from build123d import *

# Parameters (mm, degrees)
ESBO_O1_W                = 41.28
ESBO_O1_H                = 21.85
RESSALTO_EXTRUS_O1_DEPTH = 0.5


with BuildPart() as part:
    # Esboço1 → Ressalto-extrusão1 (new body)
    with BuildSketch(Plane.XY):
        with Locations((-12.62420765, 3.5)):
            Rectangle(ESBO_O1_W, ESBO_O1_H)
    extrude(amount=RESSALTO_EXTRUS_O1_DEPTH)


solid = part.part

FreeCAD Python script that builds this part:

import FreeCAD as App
import Part
import Sketcher
Q = App.Units.Quantity

doc = App.newDocument("Part")
body = doc.addObject("PartDesign::Body", "Body")

# Sketch on XY plane
sketch1 = doc.addObject("Sketcher::SketchObject", "Sketch")
body.addObject(sketch1)
sketch1.AttachmentSupport = (doc.XY_Plane, [""])
sketch1.MapMode = "FlatFace"
sketch1.addGeometry([
    Part.LineSegment(App.Vector(-33, 14, 0), App.Vector(-33, -7, 0)),
    Part.LineSegment(App.Vector(-33, -7, 0), App.Vector(8, -7, 0)),
    Part.LineSegment(App.Vector(8, -7, 0), App.Vector(8, 14, 0)),
    Part.LineSegment(App.Vector(8, 14, 0), App.Vector(-33, 14, 0)),
], False)
sketch1.addConstraint([
    Sketcher.Constraint("Coincident", 0, 2, 1, 1),
    Sketcher.Constraint("Coincident", 1, 2, 2, 1),
    Sketcher.Constraint("Coincident", 2, 2, 3, 1),
    Sketcher.Constraint("Coincident", 3, 2, 0, 1),
    Sketcher.Constraint("Vertical", 0),
    Sketcher.Constraint("Horizontal", 1),
    Sketcher.Constraint("Vertical", 2),
    Sketcher.Constraint("Horizontal", 3),
    Sketcher.Constraint("DistanceX", 1, 1, 1, 2, Q("41.28 mm")),
    Sketcher.Constraint("DistanceY", 0, 2, 0, 1, Q("21.85 mm")),
    Sketcher.Constraint("DistanceY", 0, 2, -1, 1, Q("7.425 mm")),
    Sketcher.Constraint("DistanceX", 0, 2, -1, 1, Q("33.264208 mm")),
])
pad1 = doc.addObject("PartDesign::Pad", "Pad")
body.addObject(pad1)
pad1.Profile = sketch1
pad1.Length = 0.5

doc.recompute()
